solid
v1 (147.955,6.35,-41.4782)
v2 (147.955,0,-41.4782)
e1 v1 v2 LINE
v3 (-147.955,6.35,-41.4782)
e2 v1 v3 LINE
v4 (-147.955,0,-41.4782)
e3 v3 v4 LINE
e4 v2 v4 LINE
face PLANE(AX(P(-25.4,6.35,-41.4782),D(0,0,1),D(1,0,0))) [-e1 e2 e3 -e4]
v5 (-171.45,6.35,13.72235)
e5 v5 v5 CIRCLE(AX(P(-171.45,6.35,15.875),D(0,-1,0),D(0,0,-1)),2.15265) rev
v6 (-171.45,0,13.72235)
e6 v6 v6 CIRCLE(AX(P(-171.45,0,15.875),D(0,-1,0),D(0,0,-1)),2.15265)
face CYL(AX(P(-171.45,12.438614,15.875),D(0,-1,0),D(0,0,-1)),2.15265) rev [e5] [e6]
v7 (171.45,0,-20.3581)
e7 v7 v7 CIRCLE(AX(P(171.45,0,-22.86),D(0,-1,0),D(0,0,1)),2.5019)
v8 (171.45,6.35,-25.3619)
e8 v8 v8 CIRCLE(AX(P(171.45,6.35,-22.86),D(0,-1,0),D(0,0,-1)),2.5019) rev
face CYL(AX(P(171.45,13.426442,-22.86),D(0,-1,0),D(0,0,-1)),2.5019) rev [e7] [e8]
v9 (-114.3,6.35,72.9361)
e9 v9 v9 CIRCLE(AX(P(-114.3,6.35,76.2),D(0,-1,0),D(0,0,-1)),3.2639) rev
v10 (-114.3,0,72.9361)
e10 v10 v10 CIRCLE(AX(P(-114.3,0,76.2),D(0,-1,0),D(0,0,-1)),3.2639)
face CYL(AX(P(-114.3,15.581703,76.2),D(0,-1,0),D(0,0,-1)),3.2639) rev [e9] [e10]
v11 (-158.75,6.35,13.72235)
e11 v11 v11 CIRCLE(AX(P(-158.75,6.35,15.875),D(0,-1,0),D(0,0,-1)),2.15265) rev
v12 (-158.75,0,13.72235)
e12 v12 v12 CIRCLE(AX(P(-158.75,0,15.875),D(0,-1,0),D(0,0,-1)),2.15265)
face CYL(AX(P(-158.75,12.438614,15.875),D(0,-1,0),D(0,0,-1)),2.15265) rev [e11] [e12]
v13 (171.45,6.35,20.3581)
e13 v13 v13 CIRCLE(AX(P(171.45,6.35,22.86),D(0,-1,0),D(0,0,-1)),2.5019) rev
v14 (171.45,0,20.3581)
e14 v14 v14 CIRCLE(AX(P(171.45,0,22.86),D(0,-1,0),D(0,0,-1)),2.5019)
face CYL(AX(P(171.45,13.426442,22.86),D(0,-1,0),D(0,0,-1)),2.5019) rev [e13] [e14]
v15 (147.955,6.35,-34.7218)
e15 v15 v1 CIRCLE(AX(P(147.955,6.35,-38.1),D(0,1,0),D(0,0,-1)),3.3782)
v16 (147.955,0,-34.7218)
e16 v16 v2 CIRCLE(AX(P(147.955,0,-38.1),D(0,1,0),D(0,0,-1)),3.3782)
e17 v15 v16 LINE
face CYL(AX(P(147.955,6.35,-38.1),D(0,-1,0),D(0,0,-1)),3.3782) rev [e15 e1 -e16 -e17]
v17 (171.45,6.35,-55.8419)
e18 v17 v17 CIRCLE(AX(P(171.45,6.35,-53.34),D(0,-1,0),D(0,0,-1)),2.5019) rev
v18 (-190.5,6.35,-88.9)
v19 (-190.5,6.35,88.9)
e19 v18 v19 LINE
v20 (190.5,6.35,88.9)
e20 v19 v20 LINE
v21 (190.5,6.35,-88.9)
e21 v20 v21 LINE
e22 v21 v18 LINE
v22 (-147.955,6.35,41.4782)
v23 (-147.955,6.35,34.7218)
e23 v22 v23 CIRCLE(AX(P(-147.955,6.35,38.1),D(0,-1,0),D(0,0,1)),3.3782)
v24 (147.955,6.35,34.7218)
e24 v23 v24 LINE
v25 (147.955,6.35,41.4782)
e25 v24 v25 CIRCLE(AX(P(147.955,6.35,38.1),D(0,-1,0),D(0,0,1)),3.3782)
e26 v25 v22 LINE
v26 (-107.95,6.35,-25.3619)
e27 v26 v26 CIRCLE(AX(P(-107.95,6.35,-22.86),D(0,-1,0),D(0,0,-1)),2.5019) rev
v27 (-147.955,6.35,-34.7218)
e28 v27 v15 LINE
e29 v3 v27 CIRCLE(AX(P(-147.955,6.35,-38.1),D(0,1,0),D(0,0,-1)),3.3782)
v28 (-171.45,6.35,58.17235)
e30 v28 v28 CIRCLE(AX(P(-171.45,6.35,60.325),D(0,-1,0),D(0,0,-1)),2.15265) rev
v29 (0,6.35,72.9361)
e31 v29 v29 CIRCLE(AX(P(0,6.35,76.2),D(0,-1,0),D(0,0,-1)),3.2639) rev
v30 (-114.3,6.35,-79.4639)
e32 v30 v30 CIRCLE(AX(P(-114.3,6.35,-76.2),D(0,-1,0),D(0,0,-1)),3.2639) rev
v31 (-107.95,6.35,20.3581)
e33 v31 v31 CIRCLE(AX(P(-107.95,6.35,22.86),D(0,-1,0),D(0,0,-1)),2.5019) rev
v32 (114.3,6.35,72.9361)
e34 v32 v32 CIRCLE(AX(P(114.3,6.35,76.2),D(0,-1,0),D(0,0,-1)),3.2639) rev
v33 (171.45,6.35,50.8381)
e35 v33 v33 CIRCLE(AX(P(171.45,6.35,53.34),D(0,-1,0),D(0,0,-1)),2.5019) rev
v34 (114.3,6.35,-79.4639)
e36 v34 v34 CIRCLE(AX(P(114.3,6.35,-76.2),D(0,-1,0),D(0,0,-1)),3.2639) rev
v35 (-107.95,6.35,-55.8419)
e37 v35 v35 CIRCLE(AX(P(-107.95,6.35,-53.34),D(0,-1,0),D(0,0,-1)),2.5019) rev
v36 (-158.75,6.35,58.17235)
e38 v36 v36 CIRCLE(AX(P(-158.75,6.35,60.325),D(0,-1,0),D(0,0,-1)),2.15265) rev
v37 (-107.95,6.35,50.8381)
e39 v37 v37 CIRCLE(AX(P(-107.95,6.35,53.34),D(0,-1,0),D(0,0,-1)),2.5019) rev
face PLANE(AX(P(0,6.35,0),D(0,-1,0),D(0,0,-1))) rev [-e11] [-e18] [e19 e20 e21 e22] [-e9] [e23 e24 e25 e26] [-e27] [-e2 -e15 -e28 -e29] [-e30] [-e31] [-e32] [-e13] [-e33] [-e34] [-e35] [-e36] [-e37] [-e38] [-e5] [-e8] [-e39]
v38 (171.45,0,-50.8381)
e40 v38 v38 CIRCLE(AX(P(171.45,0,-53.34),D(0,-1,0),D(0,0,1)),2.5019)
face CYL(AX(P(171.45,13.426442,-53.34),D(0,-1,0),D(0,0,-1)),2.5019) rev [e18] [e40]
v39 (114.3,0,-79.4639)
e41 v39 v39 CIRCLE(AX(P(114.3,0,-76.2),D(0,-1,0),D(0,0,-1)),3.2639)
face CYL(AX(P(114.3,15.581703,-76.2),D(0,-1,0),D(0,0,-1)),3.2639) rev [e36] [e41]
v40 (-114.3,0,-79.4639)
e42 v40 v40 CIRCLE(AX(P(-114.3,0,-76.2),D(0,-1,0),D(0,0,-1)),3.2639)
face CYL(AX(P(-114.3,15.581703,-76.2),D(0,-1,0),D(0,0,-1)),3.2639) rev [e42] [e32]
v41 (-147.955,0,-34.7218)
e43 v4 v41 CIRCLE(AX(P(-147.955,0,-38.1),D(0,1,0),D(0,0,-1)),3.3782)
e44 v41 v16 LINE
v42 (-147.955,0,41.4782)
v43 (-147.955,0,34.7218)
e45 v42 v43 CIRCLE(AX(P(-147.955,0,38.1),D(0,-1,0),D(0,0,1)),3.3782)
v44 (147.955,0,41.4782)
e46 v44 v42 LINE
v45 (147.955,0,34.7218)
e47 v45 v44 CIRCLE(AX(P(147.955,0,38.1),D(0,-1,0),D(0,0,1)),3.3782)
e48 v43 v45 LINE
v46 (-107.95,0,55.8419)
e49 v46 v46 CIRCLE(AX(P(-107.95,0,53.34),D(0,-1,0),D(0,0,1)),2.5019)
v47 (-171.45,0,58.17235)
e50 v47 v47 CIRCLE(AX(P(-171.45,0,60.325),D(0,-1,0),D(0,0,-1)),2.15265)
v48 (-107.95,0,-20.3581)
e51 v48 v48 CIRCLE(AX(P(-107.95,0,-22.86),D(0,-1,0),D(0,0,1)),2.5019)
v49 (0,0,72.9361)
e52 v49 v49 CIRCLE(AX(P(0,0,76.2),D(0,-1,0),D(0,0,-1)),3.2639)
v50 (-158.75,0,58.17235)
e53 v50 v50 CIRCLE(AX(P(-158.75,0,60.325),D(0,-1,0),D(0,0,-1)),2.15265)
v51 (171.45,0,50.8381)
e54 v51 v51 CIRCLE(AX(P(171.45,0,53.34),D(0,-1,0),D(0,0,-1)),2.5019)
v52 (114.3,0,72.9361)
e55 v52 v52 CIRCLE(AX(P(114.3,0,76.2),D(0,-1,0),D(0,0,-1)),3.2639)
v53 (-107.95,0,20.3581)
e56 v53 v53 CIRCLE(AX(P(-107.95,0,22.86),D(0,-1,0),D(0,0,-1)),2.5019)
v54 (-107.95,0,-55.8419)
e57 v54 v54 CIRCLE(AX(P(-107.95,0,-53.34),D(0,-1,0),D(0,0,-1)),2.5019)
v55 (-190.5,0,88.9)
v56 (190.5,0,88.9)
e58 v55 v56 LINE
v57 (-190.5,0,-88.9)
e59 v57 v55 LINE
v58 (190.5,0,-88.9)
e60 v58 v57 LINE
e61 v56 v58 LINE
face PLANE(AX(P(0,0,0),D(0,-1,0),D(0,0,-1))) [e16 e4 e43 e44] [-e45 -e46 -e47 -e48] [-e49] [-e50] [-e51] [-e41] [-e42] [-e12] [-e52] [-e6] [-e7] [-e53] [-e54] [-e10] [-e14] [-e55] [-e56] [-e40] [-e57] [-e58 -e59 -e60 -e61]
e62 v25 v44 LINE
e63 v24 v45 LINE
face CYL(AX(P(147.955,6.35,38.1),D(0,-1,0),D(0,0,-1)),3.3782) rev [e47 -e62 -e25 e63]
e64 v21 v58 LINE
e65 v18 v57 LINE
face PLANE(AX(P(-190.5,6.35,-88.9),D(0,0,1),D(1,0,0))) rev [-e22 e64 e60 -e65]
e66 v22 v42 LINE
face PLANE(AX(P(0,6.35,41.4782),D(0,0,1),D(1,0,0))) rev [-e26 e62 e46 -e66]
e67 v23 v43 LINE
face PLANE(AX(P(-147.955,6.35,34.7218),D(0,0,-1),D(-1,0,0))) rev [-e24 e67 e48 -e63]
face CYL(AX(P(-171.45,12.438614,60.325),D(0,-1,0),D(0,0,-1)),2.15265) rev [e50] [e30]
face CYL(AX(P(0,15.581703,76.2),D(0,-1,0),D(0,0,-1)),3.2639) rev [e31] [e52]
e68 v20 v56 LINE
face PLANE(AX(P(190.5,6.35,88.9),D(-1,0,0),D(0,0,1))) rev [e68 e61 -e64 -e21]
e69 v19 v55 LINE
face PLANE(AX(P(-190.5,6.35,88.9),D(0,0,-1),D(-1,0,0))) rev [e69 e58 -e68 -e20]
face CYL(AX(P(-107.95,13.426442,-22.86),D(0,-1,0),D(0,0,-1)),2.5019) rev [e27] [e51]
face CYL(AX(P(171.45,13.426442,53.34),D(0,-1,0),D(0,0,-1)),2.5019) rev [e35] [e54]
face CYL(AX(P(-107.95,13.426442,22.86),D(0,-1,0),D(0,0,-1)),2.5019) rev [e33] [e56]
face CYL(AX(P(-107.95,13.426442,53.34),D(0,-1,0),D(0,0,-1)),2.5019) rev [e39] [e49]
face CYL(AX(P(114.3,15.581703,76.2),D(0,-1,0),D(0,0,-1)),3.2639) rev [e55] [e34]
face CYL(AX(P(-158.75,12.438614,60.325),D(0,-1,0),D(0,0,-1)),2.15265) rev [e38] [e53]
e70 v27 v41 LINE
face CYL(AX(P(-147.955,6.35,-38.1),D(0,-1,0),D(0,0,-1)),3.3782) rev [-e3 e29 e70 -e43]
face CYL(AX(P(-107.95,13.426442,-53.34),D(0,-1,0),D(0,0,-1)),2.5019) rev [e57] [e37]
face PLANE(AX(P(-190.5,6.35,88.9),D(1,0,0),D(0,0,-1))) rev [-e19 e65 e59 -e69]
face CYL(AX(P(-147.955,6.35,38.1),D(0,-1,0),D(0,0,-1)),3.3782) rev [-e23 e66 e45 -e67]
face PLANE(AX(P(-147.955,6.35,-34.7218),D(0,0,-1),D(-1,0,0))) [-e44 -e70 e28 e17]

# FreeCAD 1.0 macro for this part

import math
import FreeCAD as App
import Part
import Sketcher
Q = App.Units.Quantity


def add_polygon(sketch, points):
    """Adds a closed chain of lines whose ends are joined by coincident constraints."""
    first, n = sketch.GeometryCount, len(points)
    for a, b in zip(points, points[1:] + points[:1]):
        sketch.addGeometry(Part.LineSegment(App.Vector(*a, 0), App.Vector(*b, 0)), False)
    for i in range(n):
        sketch.addConstraint(Sketcher.Constraint("Coincident", first + i, 2, first + (i + 1) % n, 1))

doc = App.newDocument("Part")
params = doc.addObject("Spreadsheet::Sheet", "Params")
for row, (alias, value) in enumerate([
    ("sketch1_width", "15 in"),
    ("sketch1_height", "7 in"),
    ("pad1_length", "0.25 in"),
    ("sketch2_diameter", "0.257 in"),
    ("pocket1_length", "0.25 in"),
    ("sketch3_diameter", "0.197 in"),
    ("pocket2_length", "0.25 in"),
    ("pocket3_length", "0.25 in"),
    ("sketch5_diameter", "0.257 in"),
    ("sketch6_radius", "0.133 in"),
    ("sketch6_width", "11.65 in"),
], start=1):
    params.set(f"A{row}", alias)
    params.set(f"B{row}", "=" + value)
    params.setAlias(f"B{row}", alias)

body = doc.addObject("PartDesign::Body", "Body")

# Sketch on XZ plane
sketch1 = doc.addObject("Sketcher::SketchObject", "Sketch")
body.addObject(sketch1)
sketch1.AttachmentSupport = (doc.XZ_Plane, [""])
sketch1.MapMode = "FlatFace"
add_polygon(sketch1, [(-190, -89), (-190, 89), (190, 89), (190, -89)])  # lines 0-3
sketch1.addConstraint(Sketcher.Constraint("Vertical", 0))
sketch1.addConstraint(Sketcher.Constraint("Horizontal", 1))
sketch1.addConstraint(Sketcher.Constraint("Vertical", 2))
sketch1.addConstraint(Sketcher.Constraint("Horizontal", 3))
sketch1.addConstraint(Sketcher.Constraint("Symmetric", 0, 2, 2, 2, -1, 1))
sketch1.addConstraint(Sketcher.Constraint("DistanceX", 1, 1, 1, 2, Q("15 in")))
sketch1.addConstraint(Sketcher.Constraint("DistanceY", 0, 1, 0, 2, Q("7 in")))
sketch1.setExpression("Constraints[9]", "Params.sketch1_width")
sketch1.setExpression("Constraints[10]", "Params.sketch1_height")
pad1 = doc.addObject("PartDesign::Pad", "Pad")
body.addObject(pad1)
pad1.Profile = sketch1
pad1.setExpression("Length", "Params.pad1_length")
pad1.Reversed = True

# Sketch on XZ plane
sketch2 = doc.addObject("Sketcher::SketchObject", "Sketch001")
body.addObject(sketch2)
sketch2.AttachmentSupport = (doc.XZ_Plane, [""])
sketch2.MapMode = "FlatFace"
sketch2.addGeometry(Part.Circle(App.Vector(0, 76.2, 0), App.Vector(0, 0, 1), 3.3), False)
sketch2.addGeometry(Part.Circle(App.Vector(-114.3, 76.2, 0), App.Vector(0, 0, 1), 3.3), False)
sketch2.addGeometry(Part.Circle(App.Vector(114.3, 76.2, 0), App.Vector(0, 0, 1), 3.3), False)
sketch2.addGeometry(Part.Circle(App.Vector(-114.3, -76.2, 0), App.Vector(0, 0, 1), 3.3), False)
sketch2.addGeometry(Part.Circle(App.Vector(114.3, -76.2, 0), App.Vector(0, 0, 1), 3.3), False)
sketch2.addConstraint(Sketcher.Constraint("Equal", 0, 1))
sketch2.addConstraint(Sketcher.Constraint("Equal", 1, 2))
sketch2.addConstraint(Sketcher.Constraint("Equal", 2, 3))
sketch2.addConstraint(Sketcher.Constraint("Equal", 3, 4))
sketch2.addConstraint(Sketcher.Constraint("Symmetric", 2, 3, 3, 3, -1, 1))
sketch2.addConstraint(Sketcher.Constraint("Symmetric", 1, 3, 4, 3, -1, 1))
sketch2.addConstraint(Sketcher.Constraint("Symmetric", 1, 3, 2, 3, -2))
sketch2.addConstraint(Sketcher.Constraint("PointOnObject", 0, 3, -2))
sketch2.addConstraint(Sketcher.Constraint("Horizontal", 0, 3, 1, 3))
sketch2.addConstraint(Sketcher.Constraint("Diameter", 0, Q("0.257 in")))
sketch2.addConstraint(Sketcher.Constraint("DistanceY", -1, 1, 0, 3, Q("3 in")))
sketch2.addConstraint(Sketcher.Constraint("DistanceX", 1, 3, 2, 3, Q("9 in")))
sketch2.setExpression("Constraints[9]", "Params.sketch2_diameter")
pocket1 = doc.addObject("PartDesign::Pocket", "Pocket")
body.addObject(pocket1)
pocket1.Profile = sketch2
pocket1.setExpression("Length", "Params.pocket1_length")

# Sketch on XZ plane
sketch3 = doc.addObject("Sketcher::SketchObject", "Sketch002")
body.addObject(sketch3)
sketch3.AttachmentSupport = (doc.XZ_Plane, [""])
sketch3.MapMode = "FlatFace"
sketch3.addGeometry(Part.Circle(App.Vector(171.4, 53.3, 0), App.Vector(0, 0, 1), 2.5), False)
sketch3.addGeometry(Part.Circle(App.Vector(171.4, 22.9, 0), App.Vector(0, 0, 1), 2.5), False)
sketch3.addGeometry(Part.Circle(App.Vector(-108, 53.3, 0), App.Vector(0, 0, 1), 2.5), False)
sketch3.addGeometry(Part.Circle(App.Vector(-108, 22.9, 0), App.Vector(0, 0, 1), 2.5), False)
sketch3.addGeometry(Part.Circle(App.Vector(171.4, -53.3, 0), App.Vector(0, 0, 1), 2.5), False)
sketch3.addGeometry(Part.Circle(App.Vector(171.4, -22.9, 0), App.Vector(0, 0, 1), 2.5), False)
sketch3.addGeometry(Part.Circle(App.Vector(-108, -22.9, 0), App.Vector(0, 0, 1), 2.5), False)
sketch3.addGeometry(Part.Circle(App.Vector(-108, -53.3, 0), App.Vector(0, 0, 1), 2.5), False)
sketch3.addConstraint(Sketcher.Constraint("Equal", 0, 1))
sketch3.addConstraint(Sketcher.Constraint("Equal", 1, 2))
sketch3.addConstraint(Sketcher.Constraint("Equal", 2, 3))
sketch3.addConstraint(Sketcher.Constraint("Equal", 3, 4))
sketch3.addConstraint(Sketcher.Constraint("Equal", 4, 5))
sketch3.addConstraint(Sketcher.Constraint("Equal", 5, 6))
sketch3.addConstraint(Sketcher.Constraint("Equal", 6, 7))
sketch3.addConstraint(Sketcher.Constraint("Symmetric", 0, 3, 4, 3, -1))
sketch3.addConstraint(Sketcher.Constraint("Symmetric", 1, 3, 5, 3, -1))
sketch3.addConstraint(Sketcher.Constraint("Symmetric", 3, 3, 6, 3, -1))
sketch3.addConstraint(Sketcher.Constraint("Symmetric", 2, 3, 7, 3, -1))
sketch3.addConstraint(Sketcher.Constraint("Horizontal", 0, 3, 2, 3))
sketch3.addConstraint(Sketcher.Constraint("Horizontal", 1, 3, 3, 3))
sketch3.addConstraint(Sketcher.Constraint("Vertical", 0, 3, 1, 3))
sketch3.addConstraint(Sketcher.Constraint("Vertical", 2, 3, 3, 3))
sketch3.addConstraint(Sketcher.Constraint("Diameter", 0, Q("0.197 in")))
sketch3.addConstraint(Sketcher.Constraint("DistanceX", 2, 3, 0, 3, Q("11 in")))
sketch3.addConstraint(Sketcher.Constraint("DistanceY", 4, 3, 1, 3, Q("3 in")))
sketch3.addConstraint(Sketcher.Constraint("DistanceY", -1, 1, 0, 3, Q("2.1 in")))
sketch3.addConstraint(Sketcher.Constraint("DistanceX", -1, 1, 0, 3, Q("6.75 in")))
sketch3.setExpression("Constraints[15]", "Params.sketch3_diameter")
pocket2 = doc.addObject("PartDesign::Pocket", "Pocket001")
body.addObject(pocket2)
pocket2.Profile = sketch3
pocket2.setExpression("Length", "Params.pocket2_length")

# Sketch on XZ plane
sketch4 = doc.addObject("Sketcher::SketchObject", "Sketch003")
body.addObject(sketch4)
sketch4.AttachmentSupport = (doc.XZ_Plane, [""])
sketch4.MapMode = "FlatFace"
sketch4.addGeometry(Part.Circle(App.Vector(-171.4, 60.3, 0), App.Vector(0, 0, 1), 2.2), False)
sketch4.addGeometry(Part.Circle(App.Vector(-158.8, 60.3, 0), App.Vector(0, 0, 1), 2.2), False)
sketch4.addGeometry(Part.Circle(App.Vector(-171.4, 15.9, 0), App.Vector(0, 0, 1), 2.2), False)
sketch4.addGeometry(Part.Circle(App.Vector(-158.8, 15.9, 0), App.Vector(0, 0, 1), 2.2), False)
sketch4.addConstraint(Sketcher.Constraint("Equal", 0, 1))
sketch4.addConstraint(Sketcher.Constraint("Equal", 1, 2))
sketch4.addConstraint(Sketcher.Constraint("Equal", 2, 3))
sketch4.addConstraint(Sketcher.Constraint("Horizontal", 0, 3, 1, 3))
sketch4.addConstraint(Sketcher.Constraint("Horizontal", 2, 3, 3, 3))
sketch4.addConstraint(Sketcher.Constraint("Vertical", 0, 3, 2, 3))
sketch4.addConstraint(Sketcher.Constraint("Vertical", 1, 3, 3, 3))
sketch4.addConstraint(Sketcher.Constraint("Diameter", 0, Q("0.1695 in")))
sketch4.addConstraint(Sketcher.Constraint("DistanceX", 0, 3, 1, 3, Q("0.5 in")))
sketch4.addConstraint(Sketcher.Constraint("DistanceX", 0, 3, -1, 1, Q("6.75 in")))
sketch4.addConstraint(Sketcher.Constraint("DistanceY", 2, 3, 0, 3, Q("1.75 in")))
sketch4.addConstraint(Sketcher.Constraint("DistanceY", -1, 1, 0, 3, Q("2.375 in")))
pocket3 = doc.addObject("PartDesign::Pocket", "Pocket002")
body.addObject(pocket3)
pocket3.Profile = sketch4
pocket3.setExpression("Length", "Params.pocket3_length")

# Sketch on XZ plane
sketch5 = doc.addObject("Sketcher::SketchObject", "Sketch004")
body.addObject(sketch5)
sketch5.AttachmentSupport = (doc.XZ_Plane, [""])
sketch5.MapMode = "FlatFace"
sketch5.addGeometry(Part.Circle(App.Vector(-25.4, 38.1, 0), App.Vector(0, 0, 1), 3.3), False)
sketch5.addGeometry(Part.Circle(App.Vector(25.4, 38.1, 0), App.Vector(0, 0, 1), 3.3), False)
sketch5.addGeometry(Part.Circle(App.Vector(76.2, 38.1, 0), App.Vector(0, 0, 1), 3.3), False)
sketch5.addConstraint(Sketcher.Constraint("Equal", 0, 1))
sketch5.addConstraint(Sketcher.Constraint("Equal", 1, 2))
sketch5.addConstraint(Sketcher.Constraint("Symmetric", 0, 3, 1, 3, -2))
sketch5.addConstraint(Sketcher.Constraint("Horizontal", 1, 3, 2, 3))
sketch5.addConstraint(Sketcher.Constraint("Diameter", 0, Q("0.257 in")))
sketch5.addConstraint(Sketcher.Constraint("DistanceX", 0, 3, -1, 1, Q("1 in")))
sketch5.addConstraint(Sketcher.Constraint("DistanceX", -1, 1, 2, 3, Q("3 in")))
sketch5.addConstraint(Sketcher.Constraint("DistanceY", -1, 1, 0, 3, Q("1.5 in")))
sketch5.setExpression("Constraints[4]", "Params.sketch5_diameter")
pocket4 = doc.addObject("PartDesign::Pocket", "Pocket003")
body.addObject(pocket4)
pocket4.Profile = sketch5
pocket4.Type = "ThroughAll"

# Sketch on XZ plane
sketch6 = doc.addObject("Sketcher::SketchObject", "Sketch005")
body.addObject(sketch6)
sketch6.AttachmentSupport = (doc.XZ_Plane, [""])
sketch6.MapMode = "FlatFace"
sketch6.addGeometry(Part.ArcOfCircle(Part.Circle(App.Vector(-148, 38.1, 0), App.Vector(0, 0, 1), 3.4), math.radians(90), math.radians(270)), False)
sketch6.addGeometry(Part.LineSegment(App.Vector(-148, 34.7, 0), App.Vector(148, 34.7, 0)), False)
sketch6.addGeometry(Part.ArcOfCircle(Part.Circle(App.Vector(148, 38.1, 0), App.Vector(0, 0, 1), 3.4), math.radians(-90), math.radians(90)), False)
sketch6.addGeometry(Part.LineSegment(App.Vector(148, 41.5, 0), App.Vector(-148, 41.5, 0)), False)
sketch6.addConstraint(Sketcher.Constraint("Tangent", 0, 2, 1, 1))
sketch6.addConstraint(Sketcher.Constraint("Tangent", 1, 2, 2, 1))
sketch6.addConstraint(Sketcher.Constraint("Tangent", 2, 2, 3, 1))
sketch6.addConstraint(Sketcher.Constraint("Tangent", 3, 2, 0, 1))
sketch6.addConstraint(Sketcher.Constraint("Horizontal", 1))
sketch6.addConstraint(Sketcher.Constraint("Horizontal", 3))
sketch6.addConstraint(Sketcher.Constraint("Radius", 0, Q("0.133 in")))
sketch6.addConstraint(Sketcher.Constraint("DistanceX", 1, 1, 1, 2, Q("11.65 in")))
sketch6.addConstraint(Sketcher.Constraint("DistanceY", -1, 1, 0, 3, Q("1.5 in")))
sketch6.addConstraint(Sketcher.Constraint("DistanceX", 0, 3, -1, 1, Q("5.825 in")))
sketch6.setExpression("Constraints[6]", "Params.sketch6_radius")
sketch6.setExpression("Constraints[7]", "Params.sketch6_width")
pocket5 = doc.addObject("PartDesign::Pocket", "Pocket004")
body.addObject(pocket5)
pocket5.Profile = sketch6
pocket5.Type = "ThroughAll"
doc.recompute()

mirrored = doc.addObject("PartDesign::Mirrored", "Mirrored")
body.addObject(mirrored)
mirrored.Originals = [pocket5]
mirrored.MirrorPlane = (doc.XY_Plane, [""])
body.Tip = mirrored

doc.recompute()
